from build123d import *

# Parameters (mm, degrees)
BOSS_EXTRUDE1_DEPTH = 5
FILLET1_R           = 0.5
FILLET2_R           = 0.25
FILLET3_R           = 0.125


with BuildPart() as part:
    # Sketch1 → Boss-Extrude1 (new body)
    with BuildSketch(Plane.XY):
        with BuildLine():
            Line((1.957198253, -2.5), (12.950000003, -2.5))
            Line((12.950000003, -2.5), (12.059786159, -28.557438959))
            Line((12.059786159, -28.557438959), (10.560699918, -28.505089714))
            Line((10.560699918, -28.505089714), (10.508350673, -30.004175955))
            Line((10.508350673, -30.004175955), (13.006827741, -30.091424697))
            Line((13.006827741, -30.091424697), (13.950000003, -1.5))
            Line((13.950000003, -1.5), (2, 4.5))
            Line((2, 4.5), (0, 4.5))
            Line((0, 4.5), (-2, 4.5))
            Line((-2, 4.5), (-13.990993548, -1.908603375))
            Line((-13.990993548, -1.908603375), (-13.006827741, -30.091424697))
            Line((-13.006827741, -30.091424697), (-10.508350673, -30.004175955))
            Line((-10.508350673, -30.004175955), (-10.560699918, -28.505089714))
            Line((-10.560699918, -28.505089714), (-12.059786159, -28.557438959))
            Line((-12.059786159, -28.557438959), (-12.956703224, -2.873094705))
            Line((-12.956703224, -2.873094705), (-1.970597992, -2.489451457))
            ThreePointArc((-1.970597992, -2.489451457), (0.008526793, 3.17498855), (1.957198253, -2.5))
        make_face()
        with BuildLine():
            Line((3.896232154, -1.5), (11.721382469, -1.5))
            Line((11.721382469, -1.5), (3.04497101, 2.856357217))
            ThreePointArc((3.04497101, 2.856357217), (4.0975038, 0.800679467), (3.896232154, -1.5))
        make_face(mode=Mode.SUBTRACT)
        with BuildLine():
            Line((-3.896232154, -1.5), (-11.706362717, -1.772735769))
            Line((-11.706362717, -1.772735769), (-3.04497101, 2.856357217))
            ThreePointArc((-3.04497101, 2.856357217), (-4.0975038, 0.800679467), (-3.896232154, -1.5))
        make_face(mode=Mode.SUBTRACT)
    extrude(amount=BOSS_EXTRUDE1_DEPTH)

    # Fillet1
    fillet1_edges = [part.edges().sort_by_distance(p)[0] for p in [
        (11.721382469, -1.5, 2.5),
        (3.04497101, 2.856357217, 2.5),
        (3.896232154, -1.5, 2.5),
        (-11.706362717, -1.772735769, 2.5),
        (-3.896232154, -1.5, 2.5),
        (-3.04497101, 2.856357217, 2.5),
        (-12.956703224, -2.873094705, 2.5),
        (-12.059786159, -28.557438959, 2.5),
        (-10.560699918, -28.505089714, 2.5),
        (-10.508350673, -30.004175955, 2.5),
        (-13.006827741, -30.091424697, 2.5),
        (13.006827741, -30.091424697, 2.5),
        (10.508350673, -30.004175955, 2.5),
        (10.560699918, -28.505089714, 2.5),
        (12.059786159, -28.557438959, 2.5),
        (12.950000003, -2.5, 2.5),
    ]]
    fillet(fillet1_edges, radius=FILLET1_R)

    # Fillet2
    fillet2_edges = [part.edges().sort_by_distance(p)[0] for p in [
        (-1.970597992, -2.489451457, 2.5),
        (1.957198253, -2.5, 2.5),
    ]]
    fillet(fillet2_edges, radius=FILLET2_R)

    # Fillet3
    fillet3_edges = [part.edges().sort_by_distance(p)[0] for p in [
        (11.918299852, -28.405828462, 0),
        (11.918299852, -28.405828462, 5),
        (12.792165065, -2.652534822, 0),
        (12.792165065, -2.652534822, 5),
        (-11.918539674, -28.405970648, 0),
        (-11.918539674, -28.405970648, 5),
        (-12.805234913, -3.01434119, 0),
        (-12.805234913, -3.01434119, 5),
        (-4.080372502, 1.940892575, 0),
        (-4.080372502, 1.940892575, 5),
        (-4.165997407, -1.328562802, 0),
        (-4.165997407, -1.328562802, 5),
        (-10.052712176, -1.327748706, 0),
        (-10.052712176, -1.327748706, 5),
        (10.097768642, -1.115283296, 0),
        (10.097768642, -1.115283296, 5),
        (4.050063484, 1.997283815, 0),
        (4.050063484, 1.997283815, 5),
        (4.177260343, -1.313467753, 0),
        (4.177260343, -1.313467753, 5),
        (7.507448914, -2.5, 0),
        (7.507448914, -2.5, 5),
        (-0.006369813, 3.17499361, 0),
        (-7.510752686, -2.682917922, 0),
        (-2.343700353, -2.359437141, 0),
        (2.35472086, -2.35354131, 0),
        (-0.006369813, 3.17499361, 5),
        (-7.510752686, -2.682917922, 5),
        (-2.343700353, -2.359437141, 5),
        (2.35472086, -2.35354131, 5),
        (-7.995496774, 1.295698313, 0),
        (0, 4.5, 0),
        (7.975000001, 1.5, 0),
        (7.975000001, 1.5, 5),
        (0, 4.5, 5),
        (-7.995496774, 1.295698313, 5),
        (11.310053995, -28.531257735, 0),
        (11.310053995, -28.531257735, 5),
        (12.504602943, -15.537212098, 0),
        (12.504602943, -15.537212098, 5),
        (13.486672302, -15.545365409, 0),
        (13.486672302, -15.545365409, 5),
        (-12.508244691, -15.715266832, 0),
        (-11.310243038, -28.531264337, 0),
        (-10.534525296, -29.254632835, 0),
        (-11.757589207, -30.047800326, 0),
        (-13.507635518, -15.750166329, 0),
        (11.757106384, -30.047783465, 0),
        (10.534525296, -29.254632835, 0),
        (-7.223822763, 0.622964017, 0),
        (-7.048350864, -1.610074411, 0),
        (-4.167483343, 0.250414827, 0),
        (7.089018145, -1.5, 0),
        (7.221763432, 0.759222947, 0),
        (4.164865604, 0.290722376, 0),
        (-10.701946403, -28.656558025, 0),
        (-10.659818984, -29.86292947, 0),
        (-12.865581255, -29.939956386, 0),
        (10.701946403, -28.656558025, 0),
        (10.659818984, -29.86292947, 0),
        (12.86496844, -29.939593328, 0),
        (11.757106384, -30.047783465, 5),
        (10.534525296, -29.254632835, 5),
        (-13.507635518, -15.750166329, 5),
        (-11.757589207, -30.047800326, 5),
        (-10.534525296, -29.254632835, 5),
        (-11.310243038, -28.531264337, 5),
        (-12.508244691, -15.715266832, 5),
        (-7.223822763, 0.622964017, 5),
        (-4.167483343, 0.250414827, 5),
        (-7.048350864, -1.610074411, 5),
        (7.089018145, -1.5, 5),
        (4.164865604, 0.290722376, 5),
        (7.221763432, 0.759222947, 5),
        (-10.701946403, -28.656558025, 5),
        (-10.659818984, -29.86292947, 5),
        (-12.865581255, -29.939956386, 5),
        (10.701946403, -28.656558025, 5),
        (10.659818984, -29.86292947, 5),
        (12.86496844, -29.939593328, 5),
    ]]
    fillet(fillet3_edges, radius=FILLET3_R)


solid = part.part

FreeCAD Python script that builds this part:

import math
import FreeCAD as App
import Part
import Sketcher

V = App.Vector
Q = App.Units.Quantity


def edges_at(feature, points):
    """Names of the edges that pass closest to the given points."""
    edges = feature.Shape.Edges
    near = lambda p: min(range(len(edges)), key=lambda i: edges[i].distToShape(Part.Vertex(*p))[0])
    return sorted({f"Edge{near(p) + 1}" for p in points})

doc = App.newDocument("Part")
body = doc.addObject("PartDesign::Body", "Body")

# Sketch on XY plane
sketch1 = body.newObject("Sketcher::SketchObject", "Sketch")
sketch1.AttachmentSupport = (doc.getObject("XY_Plane"), [""])
sketch1.MapMode = "FlatFace"
sketch1.addGeometry(Part.LineSegment(V(2, -2.5, 0), V(13, -2.5, 0)), False)
sketch1.addGeometry(Part.LineSegment(V(13, -2.5, 0), V(12.1, -28.6, 0)), False)
sketch1.addGeometry(Part.LineSegment(V(12.1, -28.6, 0), V(10.6, -28.5, 0)), False)
sketch1.addGeometry(Part.LineSegment(V(10.6, -28.5, 0), V(10.5, -30, 0)), False)
sketch1.addGeometry(Part.LineSegment(V(10.5, -30, 0), V(13, -30.1, 0)), False)
sketch1.addGeometry(Part.LineSegment(V(13, -30.1, 0), V(14, -1.5, 0)), False)
sketch1.addGeometry(Part.LineSegment(V(14, -1.5, 0), V(2, 4.5, 0)), False)
sketch1.addGeometry(Part.LineSegment(V(2, 4.5, 0), V(-2, 4.5, 0)), False)
sketch1.addGeometry(Part.LineSegment(V(-2, 4.5, 0), V(-14, -1.9, 0)), False)
sketch1.addGeometry(Part.LineSegment(V(-14, -1.9, 0), V(-13, -30.1, 0)), False)
sketch1.addGeometry(Part.LineSegment(V(-13, -30.1, 0), V(-10.5, -30, 0)), False)
sketch1.addGeometry(Part.LineSegment(V(-10.5, -30, 0), V(-10.6, -28.5, 0)), False)
sketch1.addGeometry(Part.LineSegment(V(-10.6, -28.5, 0), V(-12.1, -28.6, 0)), False)
sketch1.addGeometry(Part.LineSegment(V(-12.1, -28.6, 0), V(-13, -2.9, 0)), False)
sketch1.addGeometry(Part.LineSegment(V(-13, -2.9, 0), V(-2, -2.5, 0)), False)
sketch1.addGeometry(Part.ArcOfCircle(Part.Circle(V(0, 0, 0), V(0, 0, 1), 3.2), math.radians(-52), math.radians(232)), False)
sketch1.addGeometry(Part.ArcOfCircle(Part.Circle(V(0, 0, 0), V(0, 0, 1), 4.2), math.radians(137), math.radians(201)), False)
sketch1.addGeometry(Part.LineSegment(V(-3.9, -1.5, 0), V(-11.7, -1.8, 0)), False)
sketch1.addGeometry(Part.LineSegment(V(-11.7, -1.8, 0), V(-3, 2.9, 0)), False)
sketch1.addGeometry(Part.LineSegment(V(11.7, -1.5, 0), V(3.9, -1.5, 0)), False)
sketch1.addGeometry(Part.ArcOfCircle(Part.Circle(V(0, 0, 0), V(0, 0, 1), 4.2), math.radians(-21), math.radians(43)), False)
sketch1.addGeometry(Part.LineSegment(V(3, 2.9, 0), V(11.7, -1.5, 0)), False)
sketch1.addConstraint(Sketcher.Constraint("Coincident", 0, 2, 1, 1))
sketch1.addConstraint(Sketcher.Constraint("Coincident", 1, 2, 2, 1))
sketch1.addConstraint(Sketcher.Constraint("Coincident", 2, 2, 3, 1))
sketch1.addConstraint(Sketcher.Constraint("Coincident", 3, 2, 4, 1))
sketch1.addConstraint(Sketcher.Constraint("Coincident", 4, 2, 5, 1))
sketch1.addConstraint(Sketcher.Constraint("Coincident", 5, 2, 6, 1))
sketch1.addConstraint(Sketcher.Constraint("Coincident", 6, 2, 7, 1))
sketch1.addConstraint(Sketcher.Constraint("Coincident", 7, 2, 8, 1))
sketch1.addConstraint(Sketcher.Constraint("Coincident", 8, 2, 9, 1))
sketch1.addConstraint(Sketcher.Constraint("Coincident", 9, 2, 10, 1))
sketch1.addConstraint(Sketcher.Constraint("Coincident", 10, 2, 11, 1))
sketch1.addConstraint(Sketcher.Constraint("Coincident", 11, 2, 12, 1))
sketch1.addConstraint(Sketcher.Constraint("Coincident", 12, 2, 13, 1))
sketch1.addConstraint(Sketcher.Constraint("Coincident", 13, 2, 14, 1))
sketch1.addConstraint(Sketcher.Constraint("Coincident", 14, 2, 15, 2))
sketch1.addConstraint(Sketcher.Constraint("Coincident", 15, 1, 0, 1))
sketch1.addConstraint(Sketcher.Constraint("Coincident", 16, 2, 17, 1))
sketch1.addConstraint(Sketcher.Constraint("Coincident", 17, 2, 18, 1))
sketch1.addConstraint(Sketcher.Constraint("Coincident", 18, 2, 16, 1))
sketch1.addConstraint(Sketcher.Constraint("Coincident", 19, 2, 20, 1))
sketch1.addConstraint(Sketcher.Constraint("Coincident", 20, 2, 21, 1))
sketch1.addConstraint(Sketcher.Constraint("Coincident", 21, 2, 19, 1))
sketch1.addConstraint(Sketcher.Constraint("Horizontal", 0))
sketch1.addConstraint(Sketcher.Constraint("Horizontal", 7))
sketch1.addConstraint(Sketcher.Constraint("Horizontal", 19))
sketch1.addConstraint(Sketcher.Constraint("Coincident", 15, 3, -1, 1))
sketch1.addConstraint(Sketcher.Constraint("Coincident", 16, 3, -1, 1))
sketch1.addConstraint(Sketcher.Constraint("Coincident", 20, 3, -1, 1))
sketch1.addConstraint(Sketcher.Constraint("Equal", 16, 20))
sketch1.addConstraint(Sketcher.Constraint("Symmetric", 4, 2, 9, 2, -2))
sketch1.addConstraint(Sketcher.Constraint("Symmetric", 3, 2, 10, 2, -2))
sketch1.addConstraint(Sketcher.Constraint("Symmetric", 2, 2, 11, 2, -2))
sketch1.addConstraint(Sketcher.Constraint("Symmetric", 1, 2, 12, 2, -2))
sketch1.addConstraint(Sketcher.Constraint("Perpendicular", 2, 3))
sketch1.addConstraint(Sketcher.Constraint("Perpendicular", 3, 4))
sketch1.addConstraint(Sketcher.Constraint("Perpendicular", 9, 10))
sketch1.addConstraint(Sketcher.Constraint("Perpendicular", 12, 13))
sketch1.addConstraint(Sketcher.Constraint("Perpendicular", 13, 14))
sketch1.addConstraint(Sketcher.Constraint("Parallel", 14, 17))
sketch1.addConstraint(Sketcher.Constraint("Parallel", 8, 18))
sketch1.addConstraint(Sketcher.Constraint("Parallel", 6, 21))
sketch1.addConstraint(Sketcher.Constraint("Horizontal", 5, 2, 16, 2))
sketch1.addConstraint(Sketcher.Constraint("Horizontal", 16, 2, 19, 2))
sketch1.addConstraint(Sketcher.Constraint("Horizontal", 18, 2, 20, 2))
sketch1.addConstraint(Sketcher.Constraint("Equal", 2, 3))
sketch1.addConstraint(Sketcher.Constraint("DistanceX", 7, 2, 7, 1, Q("4 mm")))
sketch1.addConstraint(Sketcher.Constraint("Angle", 2, Q("178 deg")))
sketch1.addConstraint(Sketcher.Constraint("DistanceX", -1, 1, 6, 2, Q("2 mm")))
sketch1.addConstraint(Sketcher.Constraint("Radius", 15, Q("3.175 mm")))
sketch1.addConstraint(Sketcher.Constraint("Radius", 16, Q("4.175 mm")))
sketch1.addConstraint(Sketcher.Constraint("DistanceX", 0, 2, 5, 2, Q("1 mm")))
sketch1.addConstraint(Sketcher.Constraint("DistanceY", 0, 2, 5, 2, Q("1 mm")))
sketch1.addConstraint(Sketcher.Constraint("DistanceY", 0, 2, 6, 2, Q("7 mm")))
sketch1.addConstraint(Sketcher.Constraint("Distance", 2, Q("1.5 mm")))
sketch1.addConstraint(Sketcher.Constraint("Distance", 4, Q("2.5 mm")))
sketch1.addConstraint(Sketcher.Constraint("Distance", 9, Q("28.2 mm")))
sketch1.addConstraint(Sketcher.Constraint("Distance", 13, Q("25.7 mm")))
sketch1.addConstraint(Sketcher.Constraint("DistanceY", 0, 2, -1, 1, Q("2.5 mm")))
sketch1.addConstraint(Sketcher.Constraint("DistanceX", -1, 1, 0, 2, Q("12.95 mm")))
sketch1.addConstraint(Sketcher.Constraint("Distance", 14, Q("10.992802 mm")))
sketch1.addConstraint(Sketcher.Constraint("DistanceX", 19, 2, 19, 1, Q("7.82515 mm")))
sketch1.addConstraint(Sketcher.Constraint("DistanceX", -1, 1, 2, 2, Q("10.5607 mm")))
pad1 = body.newObject("PartDesign::Pad", "Pad")
pad1.Profile = sketch1
pad1.Length = 5
doc.recompute()

fillet = body.newObject("PartDesign::Fillet", "Fillet")
fillet.Base = (pad1, edges_at(pad1, [
    (11.721, -1.5, 2.5),
    (3.045, 2.856, 2.5),
    (3.896, -1.5, 2.5),
    (-11.706, -1.773, 2.5),
    (-3.896, -1.5, 2.5),
    (-3.045, 2.856, 2.5),
    (-12.957, -2.873, 2.5),
    (-12.06, -28.557, 2.5),
    (-10.561, -28.505, 2.5),
    (-10.508, -30.004, 2.5),
    (-13.007, -30.091, 2.5),
    (13.007, -30.091, 2.5),
    (10.508, -30.004, 2.5),
    (10.561, -28.505, 2.5),
    (12.06, -28.557, 2.5),
    (12.95, -2.5, 2.5),
]))
fillet.Radius = 0.5
doc.recompute()

fillet2 = body.newObject("PartDesign::Fillet", "Fillet001")
fillet2.Base = (fillet, edges_at(fillet, [(-1.971, -2.489, 2.5), (1.957, -2.5, 2.5)]))
fillet2.Radius = 0.25
doc.recompute()

fillet3 = body.newObject("PartDesign::Fillet", "Fillet002")
fillet3.Base = (fillet2, edges_at(fillet2, [
    (11.918, -28.406, 0),
    (11.918, -28.406, 5),
    (12.792, -2.653, 0),
    (12.792, -2.653, 5),
    (-11.919, -28.406, 0),
    (-11.919, -28.406, 5),
    (-12.805, -3.014, 0),
    (-12.805, -3.014, 5),
    (-4.08, 1.941, 0),
    (-4.08, 1.941, 5),
    (-4.166, -1.329, 0),
    (-4.166, -1.329, 5),
    (-10.053, -1.328, 0),
    (-10.053, -1.328, 5),
    (10.098, -1.115, 0),
    (10.098, -1.115, 5),
    (4.05, 1.997, 0),
    (4.05, 1.997, 5),
    (4.177, -1.313, 0),
    (4.177, -1.313, 5),
    (7.507, -2.5, 0),
    (7.507, -2.5, 5),
    (-0.006, 3.175, 0),
    (-7.511, -2.683, 0),
    (-2.344, -2.359, 0),
    (2.355, -2.354, 0),
    (-0.006, 3.175, 5),
    (-7.511, -2.683, 5),
    (-2.344, -2.359, 5),
    (2.355, -2.354, 5),
    (-7.995, 1.296, 0),
    (0, 4.5, 0),
    (7.975, 1.5, 0),
    (7.975, 1.5, 5),
    (0, 4.5, 5),
    (-7.995, 1.296, 5),
    (11.31, -28.531, 0),
    (11.31, -28.531, 5),
    (12.505, -15.537, 0),
    (12.505, -15.537, 5),
    (13.487, -15.545, 0),
    (13.487, -15.545, 5),
    (-12.508, -15.715, 0),
    (-11.31, -28.531, 0),
    (-10.535, -29.255, 0),
    (-11.758, -30.048, 0),
    (-13.508, -15.75, 0),
    (11.757, -30.048, 0),
    (10.535, -29.255, 0),
    (-7.224, 0.623, 0),
    (-7.048, -1.61, 0),
    (-4.167, 0.25, 0),
    (7.089, -1.5, 0),
    (7.222, 0.759, 0),
    (4.165, 0.291, 0),
    (-10.702, -28.657, 0),
    (-10.66, -29.863, 0),
    (-12.866, -29.94, 0),
    (10.702, -28.657, 0),
    (10.66, -29.863, 0),
    (12.865, -29.94, 0),
    (11.757, -30.048, 5),
    (10.535, -29.255, 5),
    (-13.508, -15.75, 5),
    (-11.758, -30.048, 5),
    (-10.535, -29.255, 5),
    (-11.31, -28.531, 5),
    (-12.508, -15.715, 5),
    (-7.224, 0.623, 5),
    (-4.167, 0.25, 5),
    (-7.048, -1.61, 5),
    (7.089, -1.5, 5),
    (4.165, 0.291, 5),
    (7.222, 0.759, 5),
    (-10.702, -28.657, 5),
    (-10.66, -29.863, 5),
    (-12.866, -29.94, 5),
    (10.702, -28.657, 5),
    (10.66, -29.863, 5),
    (12.865, -29.94, 5),
]))
fillet3.Radius = 0.125

doc.recompute()
